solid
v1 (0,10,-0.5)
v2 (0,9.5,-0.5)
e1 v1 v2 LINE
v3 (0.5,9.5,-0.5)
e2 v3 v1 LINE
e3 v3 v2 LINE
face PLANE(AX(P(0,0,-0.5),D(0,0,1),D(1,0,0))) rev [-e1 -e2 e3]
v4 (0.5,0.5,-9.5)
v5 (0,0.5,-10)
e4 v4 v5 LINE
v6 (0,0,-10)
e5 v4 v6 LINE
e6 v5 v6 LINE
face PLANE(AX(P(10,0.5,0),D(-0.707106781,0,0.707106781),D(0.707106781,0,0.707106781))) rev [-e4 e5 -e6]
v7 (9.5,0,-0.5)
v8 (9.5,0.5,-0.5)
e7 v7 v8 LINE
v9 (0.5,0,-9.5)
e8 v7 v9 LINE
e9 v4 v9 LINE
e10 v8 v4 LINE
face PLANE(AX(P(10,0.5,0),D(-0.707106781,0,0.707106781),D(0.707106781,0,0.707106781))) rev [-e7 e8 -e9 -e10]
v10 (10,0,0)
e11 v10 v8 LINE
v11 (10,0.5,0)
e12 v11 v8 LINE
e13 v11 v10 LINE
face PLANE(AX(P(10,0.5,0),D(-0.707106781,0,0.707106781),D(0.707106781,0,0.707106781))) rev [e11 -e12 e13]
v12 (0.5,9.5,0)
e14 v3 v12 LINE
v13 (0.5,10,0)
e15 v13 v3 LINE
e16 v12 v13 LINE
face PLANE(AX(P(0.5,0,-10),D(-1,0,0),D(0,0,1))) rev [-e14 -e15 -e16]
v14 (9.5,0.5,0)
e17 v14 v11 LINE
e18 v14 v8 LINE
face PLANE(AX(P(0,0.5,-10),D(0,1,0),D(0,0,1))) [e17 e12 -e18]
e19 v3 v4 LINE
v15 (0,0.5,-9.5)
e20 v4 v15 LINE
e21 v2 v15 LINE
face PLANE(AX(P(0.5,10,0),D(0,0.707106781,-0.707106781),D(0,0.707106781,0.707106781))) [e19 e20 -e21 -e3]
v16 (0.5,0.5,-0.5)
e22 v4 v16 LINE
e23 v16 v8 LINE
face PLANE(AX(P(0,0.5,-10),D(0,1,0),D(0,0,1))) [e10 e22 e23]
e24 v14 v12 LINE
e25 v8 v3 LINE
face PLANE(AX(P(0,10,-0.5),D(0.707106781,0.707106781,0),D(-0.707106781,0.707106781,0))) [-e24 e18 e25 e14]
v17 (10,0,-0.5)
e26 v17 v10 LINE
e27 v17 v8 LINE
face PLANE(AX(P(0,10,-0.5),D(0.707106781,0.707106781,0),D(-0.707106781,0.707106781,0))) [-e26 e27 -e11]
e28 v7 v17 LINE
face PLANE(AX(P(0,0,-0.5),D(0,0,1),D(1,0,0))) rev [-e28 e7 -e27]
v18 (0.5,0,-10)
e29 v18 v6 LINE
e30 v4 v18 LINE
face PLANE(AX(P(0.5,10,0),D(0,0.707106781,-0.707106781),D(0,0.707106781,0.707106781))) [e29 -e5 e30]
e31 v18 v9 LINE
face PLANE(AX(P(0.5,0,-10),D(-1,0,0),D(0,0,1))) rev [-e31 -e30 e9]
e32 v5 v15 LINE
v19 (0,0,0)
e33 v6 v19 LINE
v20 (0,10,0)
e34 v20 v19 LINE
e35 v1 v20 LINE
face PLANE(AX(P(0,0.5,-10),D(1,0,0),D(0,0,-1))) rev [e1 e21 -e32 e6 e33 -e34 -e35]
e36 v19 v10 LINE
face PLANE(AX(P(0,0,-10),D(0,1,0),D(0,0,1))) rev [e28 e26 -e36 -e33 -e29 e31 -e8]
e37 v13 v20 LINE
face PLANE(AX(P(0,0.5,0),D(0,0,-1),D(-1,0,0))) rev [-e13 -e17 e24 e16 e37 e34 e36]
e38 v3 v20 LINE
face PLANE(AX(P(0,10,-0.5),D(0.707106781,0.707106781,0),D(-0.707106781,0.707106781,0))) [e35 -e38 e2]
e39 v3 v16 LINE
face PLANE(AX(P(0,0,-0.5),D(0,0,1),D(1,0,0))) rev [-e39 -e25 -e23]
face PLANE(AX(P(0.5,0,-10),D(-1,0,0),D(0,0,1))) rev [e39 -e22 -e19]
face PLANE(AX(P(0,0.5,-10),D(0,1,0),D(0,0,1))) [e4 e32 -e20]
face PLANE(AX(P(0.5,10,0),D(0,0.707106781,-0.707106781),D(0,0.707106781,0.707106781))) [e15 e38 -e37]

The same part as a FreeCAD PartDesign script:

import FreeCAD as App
import Part
import Sketcher

V = App.Vector


def add_polygon(sketch, points):
    """Adds a closed chain of lines whose ends are joined by coincident constraints."""
    first, n = sketch.GeometryCount, len(points)
    for a, b in zip(points, points[1:] + points[:1]):
        sketch.addGeometry(Part.LineSegment(App.Vector(*a, 0), App.Vector(*b, 0)), False)
    for i in range(n):
        sketch.addConstraint(Sketcher.Constraint("Coincident", first + i, 2, first + (i + 1) % n, 1))

doc = App.newDocument("Part")
body = doc.addObject("PartDesign::Body", "Body")

sketch1 = doc.addObject("Sketcher::SketchObject", "Sketch")
body.addObject(sketch1)
sketch1.AttachmentSupport = (doc.XZ_Plane, [""])
sketch1.MapMode = "FlatFace"
add_polygon(sketch1, [(0, -10), (0, 0), (10, 0)])
sketch1.addConstraint(Sketcher.Constraint("Vertical", 0))
sketch1.addConstraint(Sketcher.Constraint("Horizontal", 1))
sketch1.addConstraint(Sketcher.Constraint("Coincident", 0, 2, -1, 1))
sketch1.addConstraint(Sketcher.Constraint("Equal", 1, 0))
sketch1.addConstraint(Sketcher.Constraint("DistanceX", 1, 1, 1, 2, 10.0))
pad1 = doc.addObject("PartDesign::Pad", "Pad")
body.addObject(pad1)
pad1.Profile = sketch1
pad1.Length = 0.5
pad1.Reversed = True

sketch2 = doc.addObject("Sketcher::SketchObject", "Sketch001")
body.addObject(sketch2)
sketch2.AttachmentSupport = (doc.XY_Plane, [""])
sketch2.MapMode = "FlatFace"
add_polygon(sketch2, [(0, 10), (0, 0), (10, 0)])
sketch2.addConstraint(Sketcher.Constraint("Vertical", 0))
sketch2.addConstraint(Sketcher.Constraint("Horizontal", 1))
sketch2.addConstraint(Sketcher.Constraint("Coincident", 0, 2, -1, 1))
sketch2.addConstraint(Sketcher.Constraint("Equal", 1, 0))
sketch2.addConstraint(Sketcher.Constraint("DistanceX", 1, 1, 1, 2, 10.0))
pad2 = doc.addObject("PartDesign::Pad", "Pad001")
body.addObject(pad2)
pad2.Profile = sketch2
pad2.Length = 0.5
pad2.Reversed = True

sketch3 = doc.addObject("Sketcher::SketchObject", "Sketch002")
body.addObject(sketch3)
sketch3.AttachmentSupport = (doc.YZ_Plane, [""])
sketch3.MapMode = "FlatFace"
add_polygon(sketch3, [(0, -10), (0, 0), (10, 0)])
sketch3.addConstraint(Sketcher.Constraint("Vertical", 0))
sketch3.addConstraint(Sketcher.Constraint("Horizontal", 1))
sketch3.addConstraint(Sketcher.Constraint("Coincident", 0, 2, -1, 1))
sketch3.addConstraint(Sketcher.Constraint("Equal", 1, 0))
sketch3.addConstraint(Sketcher.Constraint("DistanceX", 1, 1, 1, 2, 10.0))
pad3 = doc.addObject("PartDesign::Pad", "Pad002")
body.addObject(pad3)
pad3.Profile = sketch3
pad3.Length = 0.5

doc.recompute()
